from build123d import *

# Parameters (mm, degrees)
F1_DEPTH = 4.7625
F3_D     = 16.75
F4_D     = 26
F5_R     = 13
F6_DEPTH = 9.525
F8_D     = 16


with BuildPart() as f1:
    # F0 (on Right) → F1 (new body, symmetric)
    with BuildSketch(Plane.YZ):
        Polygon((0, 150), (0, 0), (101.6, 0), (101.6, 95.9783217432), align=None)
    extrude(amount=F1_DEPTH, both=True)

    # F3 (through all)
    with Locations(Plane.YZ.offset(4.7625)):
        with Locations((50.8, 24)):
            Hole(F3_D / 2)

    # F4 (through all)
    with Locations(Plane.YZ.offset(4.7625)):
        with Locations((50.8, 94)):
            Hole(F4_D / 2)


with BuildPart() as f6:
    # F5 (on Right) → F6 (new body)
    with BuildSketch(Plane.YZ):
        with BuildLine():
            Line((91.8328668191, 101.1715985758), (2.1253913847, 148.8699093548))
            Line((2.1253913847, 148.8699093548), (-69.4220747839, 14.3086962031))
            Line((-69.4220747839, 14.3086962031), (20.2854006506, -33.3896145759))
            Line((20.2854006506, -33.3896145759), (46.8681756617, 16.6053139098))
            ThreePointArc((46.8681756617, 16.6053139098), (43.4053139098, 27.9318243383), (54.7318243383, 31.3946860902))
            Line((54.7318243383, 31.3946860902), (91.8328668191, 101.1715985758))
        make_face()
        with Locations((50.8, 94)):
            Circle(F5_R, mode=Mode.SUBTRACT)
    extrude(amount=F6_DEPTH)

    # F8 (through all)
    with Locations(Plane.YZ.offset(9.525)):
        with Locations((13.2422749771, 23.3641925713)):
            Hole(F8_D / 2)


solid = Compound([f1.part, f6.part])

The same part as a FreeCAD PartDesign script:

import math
import FreeCAD as App
import Part
import Sketcher

V = App.Vector
Q = App.Units.Quantity

doc = App.newDocument("Part")
body = doc.addObject("PartDesign::Body", "Body")

# Sketch on YZ plane
sketch1 = body.newObject("Sketcher::SketchObject", "Sketch")
sketch1.AttachmentSupport = (doc.getObject("YZ_Plane"), [""])
sketch1.MapMode = "FlatFace"
sketch1.addGeometry([
    Part.LineSegment(V(0, 150, 0), V(0, 0, 0)),
    Part.LineSegment(V(0, 0, 0), V(101.6, 0, 0)),
    Part.LineSegment(V(101.6, 0, 0), V(101.6, 95.978322, 0)),
    Part.LineSegment(V(101.6, 95.978322, 0), V(0, 150, 0)),
], False)
sketch1.addConstraint([
    Sketcher.Constraint("Coincident", 0, 2, 1, 1),
    Sketcher.Constraint("Coincident", 1, 2, 2, 1),
    Sketcher.Constraint("Coincident", 2, 2, 3, 1),
    Sketcher.Constraint("Coincident", 3, 2, 0, 1),
    Sketcher.Constraint("Vertical", 0),
    Sketcher.Constraint("Horizontal", 1),
    Sketcher.Constraint("Vertical", 2),
    Sketcher.Constraint("Coincident", 0, 2, -1, 1),
    Sketcher.Constraint("DistanceX", 1, 1, 1, 2, Q("4 in")),
    Sketcher.Constraint("Angle", 3, Q("152 deg")),
    Sketcher.Constraint("DistanceY", 0, 2, 0, 1, 150.0),
])
pad1 = body.newObject("PartDesign::Pad", "Pad")
pad1.Profile = sketch1
pad1.Length = Q("0.375 in")
pad1.Midplane = True

# Sketch on YZ plane
sketch2 = body.newObject("Sketcher::SketchObject", "Sketch001")
sketch2.AttachmentSupport = (doc.getObject("YZ_Plane"), [""])
sketch2.MapMode = "FlatFace"
sketch2.AttachmentOffset = App.Placement(V(0, 0, 0.1875 * 25.4), App.Rotation())
sketch2.addGeometry(Part.Circle(V(50.8, 24, 0), V(0, 0, 1), 8.375), False)
sketch2.addConstraint([
    Sketcher.Constraint("DistanceX", -1, 1, 0, 3, Q("2 in")),
    Sketcher.Constraint("Diameter", 0, 16.75),
    Sketcher.Constraint("DistanceY", -1, 1, 0, 3, 24.0),
])
doc.recompute()
hole = body.newObject("PartDesign::Hole", "Hole")
hole.Profile = sketch2
hole.ThreadType = "None"
hole.Diameter = 16.75
hole.DepthType = "ThroughAll"

# Sketch on YZ plane
sketch3 = body.newObject("Sketcher::SketchObject", "Sketch002")
sketch3.AttachmentSupport = (doc.getObject("YZ_Plane"), [""])
sketch3.MapMode = "FlatFace"
sketch3.AttachmentOffset = App.Placement(V(0, 0, 0.1875 * 25.4), App.Rotation())
sketch3.addGeometry(Part.Circle(V(50.8, 94, 0), V(0, 0, 1), 13), False)
sketch3.addConstraint([
    Sketcher.Constraint("DistanceX", -1, 1, 0, 3, Q("2 in")),
    Sketcher.Constraint("Diameter", 0, 26.0),
    Sketcher.Constraint("DistanceY", -1, 1, 0, 3, 94.0),
])
doc.recompute()
hole2 = body.newObject("PartDesign::Hole", "Hole001")
hole2.Profile = sketch3
hole2.ThreadType = "None"
hole2.Diameter = 26
hole2.DepthType = "ThroughAll"
body2 = doc.addObject("PartDesign::Body", "Body001")

# Sketch on YZ plane
sketch4 = body2.newObject("Sketcher::SketchObject", "Sketch003")
sketch4.AttachmentSupport = (doc.getObject("YZ_Plane001"), [""])
sketch4.MapMode = "FlatFace"
sketch4.addGeometry([
    Part.LineSegment(V(91.832867, 101.171599, 0), V(2.125391, 148.869909, 0)),  # 0
    Part.LineSegment(V(2.125391, 148.869909, 0), V(-69.422075, 14.308696, 0)),  # 1
    Part.LineSegment(V(-69.422075, 14.308696, 0), V(20.285401, -33.389615, 0)),  # 2
    Part.LineSegment(V(20.285401, -33.389615, 0), V(46.868176, 16.605314, 0)),  # 3
    Part.ArcOfCircle(Part.Circle(V(50.8, 24, 0), V(0, 0, 1), 8.375), math.radians(62), math.radians(242)),  # 4
    Part.LineSegment(V(54.731824, 31.394686, 0), V(91.832867, 101.171599, 0)),  # 5
    Part.Circle(V(50.8, 94, 0), V(0, 0, 1), 13),  # 6
], False)
sketch4.addConstraint([
    Sketcher.Constraint("Coincident", 0, 2, 1, 1),
    Sketcher.Constraint("Coincident", 1, 2, 2, 1),
    Sketcher.Constraint("Coincident", 2, 2, 3, 1),
    Sketcher.Constraint("Coincident", 3, 2, 4, 2),
    Sketcher.Constraint("Coincident", 4, 1, 5, 1),
    Sketcher.Constraint("Coincident", 5, 2, 0, 1),
    Sketcher.Constraint("Perpendicular", 0, 1),
    Sketcher.Constraint("Perpendicular", 1, 2),
    Sketcher.Constraint("Perpendicular", 2, 3),
    Sketcher.Constraint("Parallel", 3, 5),
    Sketcher.Constraint("Vertical", 4, 3, 6, 3),
    Sketcher.Constraint("Equal", 0, 2),
    Sketcher.Constraint("Distance", 0, Q("4 in")),
    Sketcher.Constraint("Distance", 1, Q("6 in")),
    Sketcher.Constraint("DistanceX", -1, 1, 4, 3, Q("2 in")),
    Sketcher.Constraint("Angle", 0, Q("152 deg")),
    Sketcher.Constraint("Diameter", 6, 26.0),
    Sketcher.Constraint("Radius", 4, 8.375),
    Sketcher.Constraint("DistanceY", -1, 1, 4, 3, 24.0),
    Sketcher.Constraint("DistanceY", -1, 1, 6, 3, 94.0),
    Sketcher.Constraint("DistanceX", -1, 1, 2, 2, 20.285401),
    Sketcher.Constraint("DistanceY", -1, 1, 5, 2, 101.171599),
])
pad2 = body2.newObject("PartDesign::Pad", "Pad001")
pad2.Profile = sketch4
pad2.Length = Q("0.375 in")

# Sketch on YZ plane
sketch5 = body2.newObject("Sketcher::SketchObject", "Sketch004")
sketch5.AttachmentSupport = (doc.getObject("YZ_Plane001"), [""])
sketch5.MapMode = "FlatFace"
sketch5.AttachmentOffset = App.Placement(V(0, 0, 0.375 * 25.4), App.Rotation())
sketch5.addGeometry(Part.Circle(V(13.242275, 23.364193, 0), V(0, 0, 1), 8), False)
sketch5.addConstraint([
    Sketcher.Constraint("Diameter", 0, 16.0),
    Sketcher.Constraint("DistanceX", -1, 1, 0, 3, 13.242275),
    Sketcher.Constraint("DistanceY", -1, 1, 0, 3, 23.364193),
])
doc.recompute()
hole3 = body2.newObject("PartDesign::Hole", "Hole002")
hole3.Profile = sketch5
hole3.ThreadType = "None"
hole3.Diameter = 16
hole3.DepthType = "ThroughAll"

doc.recompute()
